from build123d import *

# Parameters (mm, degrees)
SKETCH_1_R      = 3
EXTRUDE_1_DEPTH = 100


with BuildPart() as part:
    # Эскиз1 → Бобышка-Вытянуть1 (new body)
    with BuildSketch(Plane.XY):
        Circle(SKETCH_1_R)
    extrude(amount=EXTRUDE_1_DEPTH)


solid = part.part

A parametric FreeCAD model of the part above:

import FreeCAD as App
import Part
import Sketcher
from FreeCAD import Vector

doc = App.newDocument("Part")
params = doc.addObject("Spreadsheet::Sheet", "Params")
for row, (alias, value) in enumerate([
    ("sketch1_diameter", "6 mm"),
    ("pad1_length", "100 mm"),
], start=1):
    params.set(f"A{row}", alias)
    params.set(f"B{row}", "=" + value)
    params.setAlias(f"B{row}", alias)

body = doc.addObject("PartDesign::Body", "Body")

# Sketch on XY plane
sketch1 = body.newObject("Sketcher::SketchObject", "Sketch")
sketch1.AttachmentSupport = (doc.getObject("XY_Plane"), [""])
sketch1.MapMode = "FlatFace"
sketch1.addGeometry(Part.Circle(Vector(0, 0, 0), Vector(0, 0, 1), 3), False)
sketch1.addConstraint(Sketcher.Constraint("Coincident", 0, 3, -1, 1))
sketch1.addConstraint(Sketcher.Constraint("Diameter", 0, 6.0))
sketch1.setExpression("Constraints[1]", "Params.sketch1_diameter")
pad1 = body.newObject("PartDesign::Pad", "Pad")
pad1.Profile = sketch1
pad1.setExpression("Length", "Params.pad1_length")

doc.recompute()
